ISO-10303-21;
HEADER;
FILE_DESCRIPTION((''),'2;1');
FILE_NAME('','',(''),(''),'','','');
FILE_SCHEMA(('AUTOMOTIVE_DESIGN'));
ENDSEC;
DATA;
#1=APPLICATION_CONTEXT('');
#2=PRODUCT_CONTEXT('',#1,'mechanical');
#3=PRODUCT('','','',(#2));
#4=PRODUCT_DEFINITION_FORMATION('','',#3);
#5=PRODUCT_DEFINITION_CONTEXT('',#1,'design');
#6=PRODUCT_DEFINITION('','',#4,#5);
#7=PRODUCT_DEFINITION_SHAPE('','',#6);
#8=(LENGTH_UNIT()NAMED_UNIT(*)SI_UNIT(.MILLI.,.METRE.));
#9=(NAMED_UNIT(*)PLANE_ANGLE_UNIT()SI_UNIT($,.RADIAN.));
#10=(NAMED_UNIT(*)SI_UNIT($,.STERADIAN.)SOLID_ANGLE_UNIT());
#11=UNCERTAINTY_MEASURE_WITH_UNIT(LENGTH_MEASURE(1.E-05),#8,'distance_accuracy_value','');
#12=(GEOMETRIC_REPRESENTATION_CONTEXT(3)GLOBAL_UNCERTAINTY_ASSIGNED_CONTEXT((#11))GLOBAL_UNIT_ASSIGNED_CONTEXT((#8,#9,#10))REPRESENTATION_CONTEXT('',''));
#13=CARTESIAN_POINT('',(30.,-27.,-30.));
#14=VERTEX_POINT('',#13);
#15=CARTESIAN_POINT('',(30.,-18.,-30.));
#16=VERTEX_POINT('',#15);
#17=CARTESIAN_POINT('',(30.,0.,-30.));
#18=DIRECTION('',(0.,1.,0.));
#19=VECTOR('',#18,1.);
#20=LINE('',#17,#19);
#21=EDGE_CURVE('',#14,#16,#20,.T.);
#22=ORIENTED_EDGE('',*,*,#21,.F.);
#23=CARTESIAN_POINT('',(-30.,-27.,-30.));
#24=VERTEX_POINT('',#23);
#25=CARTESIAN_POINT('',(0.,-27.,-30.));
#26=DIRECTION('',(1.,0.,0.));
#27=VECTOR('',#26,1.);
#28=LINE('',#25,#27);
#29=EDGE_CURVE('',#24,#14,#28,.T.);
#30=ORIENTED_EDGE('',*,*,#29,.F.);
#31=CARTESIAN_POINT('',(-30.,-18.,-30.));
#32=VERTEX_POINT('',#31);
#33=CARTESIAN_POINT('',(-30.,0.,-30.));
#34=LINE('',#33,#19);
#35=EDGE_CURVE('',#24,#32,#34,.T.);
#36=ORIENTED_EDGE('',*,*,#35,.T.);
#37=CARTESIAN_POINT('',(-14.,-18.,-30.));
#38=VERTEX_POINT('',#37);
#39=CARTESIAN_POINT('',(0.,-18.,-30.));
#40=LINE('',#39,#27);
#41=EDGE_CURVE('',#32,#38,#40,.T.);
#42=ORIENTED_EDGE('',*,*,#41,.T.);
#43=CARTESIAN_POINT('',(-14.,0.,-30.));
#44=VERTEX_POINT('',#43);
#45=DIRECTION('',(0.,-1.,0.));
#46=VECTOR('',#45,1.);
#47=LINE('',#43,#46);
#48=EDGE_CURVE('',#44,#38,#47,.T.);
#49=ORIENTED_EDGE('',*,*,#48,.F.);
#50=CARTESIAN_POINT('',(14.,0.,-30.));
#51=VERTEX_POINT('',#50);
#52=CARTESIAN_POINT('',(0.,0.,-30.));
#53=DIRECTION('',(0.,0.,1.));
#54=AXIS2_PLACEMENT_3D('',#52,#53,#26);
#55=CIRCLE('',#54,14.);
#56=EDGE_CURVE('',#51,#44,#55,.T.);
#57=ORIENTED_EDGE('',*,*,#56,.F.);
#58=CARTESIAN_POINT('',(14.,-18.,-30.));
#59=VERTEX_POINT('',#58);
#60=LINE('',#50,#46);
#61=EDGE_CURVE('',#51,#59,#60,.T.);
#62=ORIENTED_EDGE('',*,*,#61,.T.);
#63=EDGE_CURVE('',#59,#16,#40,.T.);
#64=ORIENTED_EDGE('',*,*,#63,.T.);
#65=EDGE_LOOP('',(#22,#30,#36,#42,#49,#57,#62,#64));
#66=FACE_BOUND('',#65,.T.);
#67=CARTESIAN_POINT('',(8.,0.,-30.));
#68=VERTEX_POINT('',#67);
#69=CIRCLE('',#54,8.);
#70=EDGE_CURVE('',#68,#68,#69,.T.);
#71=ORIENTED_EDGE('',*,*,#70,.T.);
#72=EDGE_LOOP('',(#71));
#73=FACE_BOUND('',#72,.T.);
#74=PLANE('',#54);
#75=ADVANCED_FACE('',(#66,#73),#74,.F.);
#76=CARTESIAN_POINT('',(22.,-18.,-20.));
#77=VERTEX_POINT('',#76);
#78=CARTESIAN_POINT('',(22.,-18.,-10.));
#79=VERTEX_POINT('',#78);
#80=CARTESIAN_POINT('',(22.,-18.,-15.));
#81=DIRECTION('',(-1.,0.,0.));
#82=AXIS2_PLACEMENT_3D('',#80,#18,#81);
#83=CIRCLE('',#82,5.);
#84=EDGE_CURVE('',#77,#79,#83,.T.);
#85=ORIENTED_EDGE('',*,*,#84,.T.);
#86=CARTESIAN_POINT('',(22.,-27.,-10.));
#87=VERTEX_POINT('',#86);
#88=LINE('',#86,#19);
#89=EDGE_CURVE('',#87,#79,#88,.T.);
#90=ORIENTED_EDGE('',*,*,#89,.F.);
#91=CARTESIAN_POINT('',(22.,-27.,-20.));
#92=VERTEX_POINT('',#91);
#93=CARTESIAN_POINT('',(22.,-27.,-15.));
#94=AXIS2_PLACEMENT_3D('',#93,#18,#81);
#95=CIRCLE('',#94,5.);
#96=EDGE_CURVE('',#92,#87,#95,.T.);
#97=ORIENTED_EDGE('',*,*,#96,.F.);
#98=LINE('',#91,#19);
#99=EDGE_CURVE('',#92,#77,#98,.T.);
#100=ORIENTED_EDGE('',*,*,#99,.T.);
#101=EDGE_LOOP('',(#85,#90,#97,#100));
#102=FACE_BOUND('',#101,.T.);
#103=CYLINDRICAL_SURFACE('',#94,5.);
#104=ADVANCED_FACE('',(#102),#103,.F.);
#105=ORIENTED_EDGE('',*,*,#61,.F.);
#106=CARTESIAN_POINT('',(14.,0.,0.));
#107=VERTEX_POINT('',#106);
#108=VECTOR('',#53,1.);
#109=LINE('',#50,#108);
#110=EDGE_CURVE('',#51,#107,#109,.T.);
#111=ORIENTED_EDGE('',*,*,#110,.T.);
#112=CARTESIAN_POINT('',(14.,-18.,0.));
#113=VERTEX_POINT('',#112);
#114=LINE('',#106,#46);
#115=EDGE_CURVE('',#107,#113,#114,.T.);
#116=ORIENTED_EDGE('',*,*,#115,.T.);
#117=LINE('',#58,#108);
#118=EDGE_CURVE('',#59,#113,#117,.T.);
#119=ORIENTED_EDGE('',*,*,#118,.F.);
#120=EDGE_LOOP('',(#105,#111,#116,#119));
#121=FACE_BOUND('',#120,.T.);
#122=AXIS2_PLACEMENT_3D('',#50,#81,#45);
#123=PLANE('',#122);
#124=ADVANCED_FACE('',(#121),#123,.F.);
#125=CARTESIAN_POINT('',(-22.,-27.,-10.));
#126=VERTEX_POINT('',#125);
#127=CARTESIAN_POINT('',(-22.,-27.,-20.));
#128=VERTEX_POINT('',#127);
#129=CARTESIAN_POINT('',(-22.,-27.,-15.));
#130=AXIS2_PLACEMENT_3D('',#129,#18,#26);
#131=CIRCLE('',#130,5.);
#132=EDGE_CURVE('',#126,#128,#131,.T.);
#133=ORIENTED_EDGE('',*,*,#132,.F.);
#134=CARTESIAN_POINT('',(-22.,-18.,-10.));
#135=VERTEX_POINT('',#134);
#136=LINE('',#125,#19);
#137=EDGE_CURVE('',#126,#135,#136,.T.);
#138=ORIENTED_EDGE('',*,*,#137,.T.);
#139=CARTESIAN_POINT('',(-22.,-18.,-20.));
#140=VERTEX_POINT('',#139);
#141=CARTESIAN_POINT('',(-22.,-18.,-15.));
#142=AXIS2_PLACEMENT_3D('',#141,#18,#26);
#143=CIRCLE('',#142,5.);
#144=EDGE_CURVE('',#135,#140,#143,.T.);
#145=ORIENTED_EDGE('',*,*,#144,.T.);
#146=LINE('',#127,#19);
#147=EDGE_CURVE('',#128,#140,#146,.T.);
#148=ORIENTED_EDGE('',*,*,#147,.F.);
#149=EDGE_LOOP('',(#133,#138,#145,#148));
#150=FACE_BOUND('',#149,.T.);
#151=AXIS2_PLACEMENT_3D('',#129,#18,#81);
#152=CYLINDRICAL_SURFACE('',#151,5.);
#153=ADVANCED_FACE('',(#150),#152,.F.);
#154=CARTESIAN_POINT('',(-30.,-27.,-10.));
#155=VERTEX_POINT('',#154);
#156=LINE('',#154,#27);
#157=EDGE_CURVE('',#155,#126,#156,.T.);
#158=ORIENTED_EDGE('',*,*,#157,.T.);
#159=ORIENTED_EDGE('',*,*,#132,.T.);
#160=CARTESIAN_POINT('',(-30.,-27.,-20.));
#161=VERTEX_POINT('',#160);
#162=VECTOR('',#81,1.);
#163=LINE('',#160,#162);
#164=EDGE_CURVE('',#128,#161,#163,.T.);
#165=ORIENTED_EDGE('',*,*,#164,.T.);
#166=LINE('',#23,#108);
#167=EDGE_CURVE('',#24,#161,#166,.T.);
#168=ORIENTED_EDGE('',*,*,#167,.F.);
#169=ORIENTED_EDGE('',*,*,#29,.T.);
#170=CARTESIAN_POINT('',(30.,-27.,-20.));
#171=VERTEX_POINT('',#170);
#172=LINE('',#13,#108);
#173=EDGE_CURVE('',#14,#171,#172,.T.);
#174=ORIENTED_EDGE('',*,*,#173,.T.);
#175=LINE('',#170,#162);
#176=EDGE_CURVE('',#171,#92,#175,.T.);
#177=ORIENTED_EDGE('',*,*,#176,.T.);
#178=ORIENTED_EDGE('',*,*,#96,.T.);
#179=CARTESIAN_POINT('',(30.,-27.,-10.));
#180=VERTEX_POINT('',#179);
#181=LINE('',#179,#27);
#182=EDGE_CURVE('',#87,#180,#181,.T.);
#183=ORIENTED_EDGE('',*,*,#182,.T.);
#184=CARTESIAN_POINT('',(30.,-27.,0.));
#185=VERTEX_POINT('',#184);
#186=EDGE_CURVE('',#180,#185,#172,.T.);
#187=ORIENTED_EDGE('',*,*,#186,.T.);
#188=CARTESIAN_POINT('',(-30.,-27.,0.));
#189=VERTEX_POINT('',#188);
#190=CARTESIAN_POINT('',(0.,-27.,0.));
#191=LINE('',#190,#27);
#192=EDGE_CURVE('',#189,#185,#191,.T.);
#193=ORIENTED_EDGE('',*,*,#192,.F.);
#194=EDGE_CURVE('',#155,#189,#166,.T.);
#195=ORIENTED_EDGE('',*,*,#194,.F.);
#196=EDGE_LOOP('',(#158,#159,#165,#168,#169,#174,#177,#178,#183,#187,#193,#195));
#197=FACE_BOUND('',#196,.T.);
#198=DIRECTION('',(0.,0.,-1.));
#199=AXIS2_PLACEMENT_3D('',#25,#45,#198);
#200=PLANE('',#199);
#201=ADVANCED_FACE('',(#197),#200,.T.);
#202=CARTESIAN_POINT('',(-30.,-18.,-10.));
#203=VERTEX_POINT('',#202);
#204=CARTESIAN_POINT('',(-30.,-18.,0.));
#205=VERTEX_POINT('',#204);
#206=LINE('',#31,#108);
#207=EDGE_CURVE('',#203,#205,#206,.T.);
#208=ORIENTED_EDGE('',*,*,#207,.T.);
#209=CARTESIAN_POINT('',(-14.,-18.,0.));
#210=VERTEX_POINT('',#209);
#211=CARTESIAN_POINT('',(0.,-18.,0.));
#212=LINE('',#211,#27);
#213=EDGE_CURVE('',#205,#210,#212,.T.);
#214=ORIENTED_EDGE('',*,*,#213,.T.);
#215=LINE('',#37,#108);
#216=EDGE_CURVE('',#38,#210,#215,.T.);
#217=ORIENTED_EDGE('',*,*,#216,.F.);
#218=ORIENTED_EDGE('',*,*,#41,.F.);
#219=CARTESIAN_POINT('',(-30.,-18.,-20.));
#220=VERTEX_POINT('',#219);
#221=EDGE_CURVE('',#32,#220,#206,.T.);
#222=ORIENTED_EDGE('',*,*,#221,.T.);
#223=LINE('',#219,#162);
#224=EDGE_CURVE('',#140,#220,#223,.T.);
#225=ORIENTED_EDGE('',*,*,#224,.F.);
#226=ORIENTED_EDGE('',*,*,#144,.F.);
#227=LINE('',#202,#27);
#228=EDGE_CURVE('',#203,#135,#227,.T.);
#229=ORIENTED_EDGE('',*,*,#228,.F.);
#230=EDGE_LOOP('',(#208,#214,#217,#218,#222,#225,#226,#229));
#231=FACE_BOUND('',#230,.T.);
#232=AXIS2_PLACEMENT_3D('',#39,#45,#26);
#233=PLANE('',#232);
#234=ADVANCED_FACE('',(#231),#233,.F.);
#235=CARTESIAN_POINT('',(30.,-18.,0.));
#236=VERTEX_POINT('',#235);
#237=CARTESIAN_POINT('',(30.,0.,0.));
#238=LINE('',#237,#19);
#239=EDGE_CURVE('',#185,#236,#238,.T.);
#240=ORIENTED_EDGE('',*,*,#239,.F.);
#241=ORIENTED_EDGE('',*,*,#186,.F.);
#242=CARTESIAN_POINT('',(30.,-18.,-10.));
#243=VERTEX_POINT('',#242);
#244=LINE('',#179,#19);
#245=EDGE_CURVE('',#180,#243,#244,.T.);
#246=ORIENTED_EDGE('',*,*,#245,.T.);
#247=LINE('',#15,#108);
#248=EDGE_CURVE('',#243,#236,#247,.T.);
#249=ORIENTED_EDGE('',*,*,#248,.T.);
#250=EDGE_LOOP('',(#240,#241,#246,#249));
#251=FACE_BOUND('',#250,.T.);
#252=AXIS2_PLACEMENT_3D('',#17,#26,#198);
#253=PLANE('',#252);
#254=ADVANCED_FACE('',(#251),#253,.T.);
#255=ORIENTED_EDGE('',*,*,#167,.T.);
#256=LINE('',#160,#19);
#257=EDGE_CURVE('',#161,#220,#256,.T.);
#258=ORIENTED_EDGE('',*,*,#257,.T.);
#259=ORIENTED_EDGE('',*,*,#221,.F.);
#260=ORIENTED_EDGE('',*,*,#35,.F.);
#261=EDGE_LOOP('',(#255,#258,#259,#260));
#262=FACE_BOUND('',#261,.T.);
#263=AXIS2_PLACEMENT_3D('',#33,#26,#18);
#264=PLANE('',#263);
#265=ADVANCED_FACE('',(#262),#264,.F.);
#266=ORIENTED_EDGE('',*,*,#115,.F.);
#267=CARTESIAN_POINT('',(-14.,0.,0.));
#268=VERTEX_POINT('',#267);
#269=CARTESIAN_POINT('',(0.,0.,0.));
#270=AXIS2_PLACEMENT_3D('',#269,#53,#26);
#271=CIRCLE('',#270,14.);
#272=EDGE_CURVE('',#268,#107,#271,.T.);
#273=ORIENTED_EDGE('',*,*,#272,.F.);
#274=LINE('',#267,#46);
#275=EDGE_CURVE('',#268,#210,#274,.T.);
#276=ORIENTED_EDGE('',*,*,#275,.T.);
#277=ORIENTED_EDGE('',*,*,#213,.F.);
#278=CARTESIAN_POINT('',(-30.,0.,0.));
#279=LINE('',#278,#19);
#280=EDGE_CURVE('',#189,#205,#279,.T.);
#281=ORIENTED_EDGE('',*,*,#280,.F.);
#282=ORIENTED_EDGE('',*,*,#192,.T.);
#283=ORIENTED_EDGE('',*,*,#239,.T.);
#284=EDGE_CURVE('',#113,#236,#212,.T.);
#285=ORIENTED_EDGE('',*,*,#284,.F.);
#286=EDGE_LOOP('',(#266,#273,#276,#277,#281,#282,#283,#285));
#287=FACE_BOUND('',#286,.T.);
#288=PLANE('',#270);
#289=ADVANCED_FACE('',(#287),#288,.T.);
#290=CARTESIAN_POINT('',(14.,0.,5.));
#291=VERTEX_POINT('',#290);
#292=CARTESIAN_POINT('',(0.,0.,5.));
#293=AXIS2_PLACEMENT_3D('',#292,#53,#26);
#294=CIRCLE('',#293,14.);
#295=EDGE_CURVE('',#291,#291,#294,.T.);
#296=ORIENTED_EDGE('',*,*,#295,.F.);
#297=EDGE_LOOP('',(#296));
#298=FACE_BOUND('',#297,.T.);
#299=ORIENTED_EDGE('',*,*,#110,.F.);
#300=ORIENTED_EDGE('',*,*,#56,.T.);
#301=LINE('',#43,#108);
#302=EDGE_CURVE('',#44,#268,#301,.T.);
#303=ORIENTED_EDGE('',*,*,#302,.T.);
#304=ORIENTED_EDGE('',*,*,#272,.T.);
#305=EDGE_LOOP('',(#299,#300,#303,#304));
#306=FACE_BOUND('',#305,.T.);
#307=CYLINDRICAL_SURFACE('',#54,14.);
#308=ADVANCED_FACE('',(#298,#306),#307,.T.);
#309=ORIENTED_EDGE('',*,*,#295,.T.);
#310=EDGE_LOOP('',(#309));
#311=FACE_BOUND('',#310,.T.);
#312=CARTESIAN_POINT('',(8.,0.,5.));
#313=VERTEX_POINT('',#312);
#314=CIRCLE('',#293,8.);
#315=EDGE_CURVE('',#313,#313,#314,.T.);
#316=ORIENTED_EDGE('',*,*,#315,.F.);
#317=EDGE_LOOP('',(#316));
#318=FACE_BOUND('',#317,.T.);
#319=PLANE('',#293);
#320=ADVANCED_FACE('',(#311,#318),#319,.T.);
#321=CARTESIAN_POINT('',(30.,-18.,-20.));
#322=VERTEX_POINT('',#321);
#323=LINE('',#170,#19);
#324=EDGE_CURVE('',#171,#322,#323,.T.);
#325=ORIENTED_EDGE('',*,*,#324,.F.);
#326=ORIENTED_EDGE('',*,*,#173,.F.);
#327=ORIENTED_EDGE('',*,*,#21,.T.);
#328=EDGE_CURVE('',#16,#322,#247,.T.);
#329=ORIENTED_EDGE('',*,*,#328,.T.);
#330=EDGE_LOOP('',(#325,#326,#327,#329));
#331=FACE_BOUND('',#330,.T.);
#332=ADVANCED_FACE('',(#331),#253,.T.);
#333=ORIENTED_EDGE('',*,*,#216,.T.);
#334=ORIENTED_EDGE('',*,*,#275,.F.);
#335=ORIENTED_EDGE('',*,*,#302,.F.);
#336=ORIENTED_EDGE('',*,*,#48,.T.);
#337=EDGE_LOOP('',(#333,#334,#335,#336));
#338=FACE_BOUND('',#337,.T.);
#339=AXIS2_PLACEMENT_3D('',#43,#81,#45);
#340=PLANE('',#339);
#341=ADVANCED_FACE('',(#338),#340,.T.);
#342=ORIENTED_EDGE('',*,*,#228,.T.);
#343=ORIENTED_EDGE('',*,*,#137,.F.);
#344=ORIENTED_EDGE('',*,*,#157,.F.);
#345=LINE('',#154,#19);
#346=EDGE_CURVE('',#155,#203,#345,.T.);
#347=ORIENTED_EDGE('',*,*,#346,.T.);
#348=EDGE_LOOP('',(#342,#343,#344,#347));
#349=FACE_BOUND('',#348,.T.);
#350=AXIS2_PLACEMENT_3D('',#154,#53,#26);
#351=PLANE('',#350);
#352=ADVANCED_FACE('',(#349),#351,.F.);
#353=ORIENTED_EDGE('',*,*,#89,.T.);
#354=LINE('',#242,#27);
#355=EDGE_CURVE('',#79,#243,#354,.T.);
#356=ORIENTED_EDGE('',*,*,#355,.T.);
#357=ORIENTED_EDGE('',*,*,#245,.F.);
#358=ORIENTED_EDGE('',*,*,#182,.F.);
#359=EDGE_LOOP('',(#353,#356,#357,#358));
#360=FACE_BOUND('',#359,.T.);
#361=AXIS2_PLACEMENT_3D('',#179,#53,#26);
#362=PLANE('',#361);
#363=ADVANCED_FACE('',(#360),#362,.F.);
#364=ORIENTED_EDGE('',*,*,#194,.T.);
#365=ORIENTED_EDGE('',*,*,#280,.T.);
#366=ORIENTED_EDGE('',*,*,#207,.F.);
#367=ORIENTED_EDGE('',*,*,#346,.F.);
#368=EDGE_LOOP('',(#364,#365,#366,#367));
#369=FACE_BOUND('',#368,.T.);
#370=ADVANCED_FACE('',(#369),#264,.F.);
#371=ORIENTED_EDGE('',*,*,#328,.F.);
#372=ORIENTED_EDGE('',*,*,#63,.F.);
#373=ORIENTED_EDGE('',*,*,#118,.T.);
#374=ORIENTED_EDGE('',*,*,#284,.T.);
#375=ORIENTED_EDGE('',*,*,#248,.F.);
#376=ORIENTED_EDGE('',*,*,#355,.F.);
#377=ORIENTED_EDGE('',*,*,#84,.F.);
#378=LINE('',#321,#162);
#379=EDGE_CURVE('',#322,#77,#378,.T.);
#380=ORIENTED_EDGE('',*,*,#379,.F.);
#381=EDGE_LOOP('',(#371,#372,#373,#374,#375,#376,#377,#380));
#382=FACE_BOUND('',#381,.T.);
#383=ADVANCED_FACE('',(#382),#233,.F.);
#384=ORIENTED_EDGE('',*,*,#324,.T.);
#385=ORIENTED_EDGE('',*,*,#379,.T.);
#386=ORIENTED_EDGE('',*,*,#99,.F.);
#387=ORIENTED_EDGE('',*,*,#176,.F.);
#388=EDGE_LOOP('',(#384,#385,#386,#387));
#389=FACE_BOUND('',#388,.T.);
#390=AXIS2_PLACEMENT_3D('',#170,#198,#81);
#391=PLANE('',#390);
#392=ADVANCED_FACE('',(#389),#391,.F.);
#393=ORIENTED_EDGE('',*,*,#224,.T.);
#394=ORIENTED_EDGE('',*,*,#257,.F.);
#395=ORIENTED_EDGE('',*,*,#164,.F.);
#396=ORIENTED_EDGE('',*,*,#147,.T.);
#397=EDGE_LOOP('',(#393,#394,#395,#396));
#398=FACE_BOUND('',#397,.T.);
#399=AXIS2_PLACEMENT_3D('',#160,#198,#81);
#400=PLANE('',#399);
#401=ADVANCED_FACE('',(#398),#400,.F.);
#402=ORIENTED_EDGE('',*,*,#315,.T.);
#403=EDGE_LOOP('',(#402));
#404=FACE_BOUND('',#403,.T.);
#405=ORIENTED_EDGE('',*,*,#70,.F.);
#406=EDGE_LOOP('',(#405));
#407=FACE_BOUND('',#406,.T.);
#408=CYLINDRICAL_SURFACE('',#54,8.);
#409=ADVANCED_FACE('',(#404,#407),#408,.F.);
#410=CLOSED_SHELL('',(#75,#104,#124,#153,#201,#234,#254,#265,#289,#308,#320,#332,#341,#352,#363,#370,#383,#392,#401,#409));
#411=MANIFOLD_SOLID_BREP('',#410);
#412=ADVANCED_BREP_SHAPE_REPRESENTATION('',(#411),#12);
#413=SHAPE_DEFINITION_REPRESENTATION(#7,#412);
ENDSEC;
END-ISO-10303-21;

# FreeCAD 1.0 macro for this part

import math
import FreeCAD as App
import Part
import Sketcher

V = App.Vector
Q = App.Units.Quantity

doc = App.newDocument("Part")
body = doc.addObject("PartDesign::Body", "Body")

# Sketch on XY plane
sketch1 = body.newObject("Sketcher::SketchObject", "Sketch")
sketch1.AttachmentSupport = (doc.getObject("XY_Plane"), [""])
sketch1.MapMode = "FlatFace"
sketch1.addGeometry(Part.ArcOfCircle(Part.Circle(V(0, 0, 0), V(0, 0, 1), 14), math.radians(0), math.radians(180)), False)
sketch1.addGeometry(Part.LineSegment(V(-14, 0, 0), V(-14, -18, 0)), False)
sketch1.addGeometry(Part.LineSegment(V(-14, -18, 0), V(-30, -18, 0)), False)
sketch1.addGeometry(Part.LineSegment(V(-30, -18, 0), V(-30, -27, 0)), False)
sketch1.addGeometry(Part.LineSegment(V(-30, -27, 0), V(30, -27, 0)), False)
sketch1.addGeometry(Part.LineSegment(V(30, -27, 0), V(30, -18, 0)), False)
sketch1.addGeometry(Part.LineSegment(V(30, -18, 0), V(14, -18, 0)), False)
sketch1.addGeometry(Part.LineSegment(V(14, -18, 0), V(14, 0, 0)), False)
sketch1.addGeometry(Part.Circle(V(0, 0, 0), V(0, 0, 1), 8), False)
sketch1.addConstraint(Sketcher.Constraint("Tangent", 0, 2, 1, 1))
sketch1.addConstraint(Sketcher.Constraint("Coincident", 1, 2, 2, 1))
sketch1.addConstraint(Sketcher.Constraint("Coincident", 2, 2, 3, 1))
sketch1.addConstraint(Sketcher.Constraint("Coincident", 3, 2, 4, 1))
sketch1.addConstraint(Sketcher.Constraint("Coincident", 4, 2, 5, 1))
sketch1.addConstraint(Sketcher.Constraint("Coincident", 5, 2, 6, 1))
sketch1.addConstraint(Sketcher.Constraint("Coincident", 6, 2, 7, 1))
sketch1.addConstraint(Sketcher.Constraint("Tangent", 7, 2, 0, 1))
sketch1.addConstraint(Sketcher.Constraint("Vertical", 1))
sketch1.addConstraint(Sketcher.Constraint("Horizontal", 2))
sketch1.addConstraint(Sketcher.Constraint("Vertical", 3))
sketch1.addConstraint(Sketcher.Constraint("Horizontal", 4))
sketch1.addConstraint(Sketcher.Constraint("Vertical", 5))
sketch1.addConstraint(Sketcher.Constraint("Horizontal", 6))
sketch1.addConstraint(Sketcher.Constraint("Vertical", 7))
sketch1.addConstraint(Sketcher.Constraint("Coincident", 0, 3, -1, 1))
sketch1.addConstraint(Sketcher.Constraint("Coincident", 8, 3, -1, 1))
sketch1.addConstraint(Sketcher.Constraint("Symmetric", 2, 2, 5, 2, -2))
sketch1.addConstraint(Sketcher.Constraint("Diameter", 8, Q("16 mm")))
sketch1.addConstraint(Sketcher.Constraint("Radius", 0, Q("14 mm")))
sketch1.addConstraint(Sketcher.Constraint("DistanceX", 2, 2, 2, 1, Q("16 mm")))
sketch1.addConstraint(Sketcher.Constraint("DistanceY", 1, 2, 1, 1, Q("18 mm")))
sketch1.addConstraint(Sketcher.Constraint("DistanceY", 3, 2, 3, 1, Q("9 mm")))
pad1 = body.newObject("PartDesign::Pad", "Pad")
pad1.Profile = sketch1
pad1.Length = 30
pad1.Reversed = True

# Sketch on XY plane
sketch2 = body.newObject("Sketcher::SketchObject", "Sketch001")
sketch2.AttachmentSupport = (doc.getObject("XY_Plane"), [""])
sketch2.MapMode = "FlatFace"
sketch2.AttachmentOffset = App.Placement(V(0, 0, 5), App.Rotation())
sketch2.addGeometry(Part.Circle(V(0, 0, 0), V(0, 0, 1), 14), False)
sketch2.addGeometry(Part.Circle(V(0, 0, 0), V(0, 0, 1), 8), False)
sketch2.addConstraint(Sketcher.Constraint("Coincident", 0, 3, -1, 1))
sketch2.addConstraint(Sketcher.Constraint("Coincident", 1, 3, -1, 1))
sketch2.addConstraint(Sketcher.Constraint("Diameter", 0, Q("28 mm")))
sketch2.addConstraint(Sketcher.Constraint("Diameter", 1, Q("16 mm")))
pad2 = body.newObject("PartDesign::Pad", "Pad001")
pad2.Profile = sketch2
pad2.Length = 5
pad2.Reversed = True

# Sketch on XZ plane
sketch3 = body.newObject("Sketcher::SketchObject", "Sketch002")
sketch3.AttachmentSupport = (doc.getObject("XZ_Plane"), [""])
sketch3.MapMode = "FlatFace"
sketch3.AttachmentOffset = App.Placement(V(0, 0, 18), App.Rotation())
sketch3.addGeometry(Part.LineSegment(V(22, -10, 0), V(30, -10, 0)), False)
sketch3.addGeometry(Part.LineSegment(V(30, -10, 0), V(30, -20, 0)), False)
sketch3.addGeometry(Part.LineSegment(V(30, -20, 0), V(22, -20, 0)), False)
sketch3.addGeometry(Part.ArcOfCircle(Part.Circle(V(22, -15, 0), V(0, 0, 1), 5), math.radians(90), math.radians(270)), False)
sketch3.addGeometry(Part.LineSegment(V(-22, -20, 0), V(-30, -20, 0)), False)
sketch3.addGeometry(Part.LineSegment(V(-30, -20, 0), V(-30, -10, 0)), False)
sketch3.addGeometry(Part.LineSegment(V(-30, -10, 0), V(-22, -10, 0)), False)
sketch3.addGeometry(Part.ArcOfCircle(Part.Circle(V(-22, -15, 0), V(0, 0, 1), 5), math.radians(-90), math.radians(90)), False)
sketch3.addConstraint(Sketcher.Constraint("Coincident", 0, 2, 1, 1))
sketch3.addConstraint(Sketcher.Constraint("Coincident", 1, 2, 2, 1))
sketch3.addConstraint(Sketcher.Constraint("Tangent", 2, 2, 3, 2))
sketch3.addConstraint(Sketcher.Constraint("Tangent", 3, 1, 0, 1))
sketch3.addConstraint(Sketcher.Constraint("Coincident", 4, 2, 5, 1))
sketch3.addConstraint(Sketcher.Constraint("Coincident", 5, 2, 6, 1))
sketch3.addConstraint(Sketcher.Constraint("Tangent", 6, 2, 7, 2))
sketch3.addConstraint(Sketcher.Constraint("Tangent", 7, 1, 4, 1))
sketch3.addConstraint(Sketcher.Constraint("Horizontal", 0))
sketch3.addConstraint(Sketcher.Constraint("Vertical", 1))
sketch3.addConstraint(Sketcher.Constraint("Horizontal", 2))
sketch3.addConstraint(Sketcher.Constraint("Horizontal", 4))
sketch3.addConstraint(Sketcher.Constraint("Vertical", 5))
sketch3.addConstraint(Sketcher.Constraint("Horizontal", 6))
sketch3.addConstraint(Sketcher.Constraint("Equal", 3, 7))
sketch3.addConstraint(Sketcher.Constraint("Symmetric", 3, 3, 7, 3, -2))
sketch3.addConstraint(Sketcher.Constraint("Equal", 2, 4))
sketch3.addConstraint(Sketcher.Constraint("Radius", 3, Q("5 mm")))
sketch3.addConstraint(Sketcher.Constraint("DistanceX", 0, 1, 0, 2, Q("8 mm")))
sketch3.addConstraint(Sketcher.Constraint("DistanceX", -1, 1, 3, 3, Q("22 mm")))
sketch3.addConstraint(Sketcher.Constraint("DistanceY", 3, 3, -1, 1, Q("15 mm")))
pocket1 = body.newObject("PartDesign::Pocket", "Pocket")
pocket1.Profile = sketch3
pocket1.Type = "ThroughAll"
pocket1.Reversed = True

doc.recompute()
